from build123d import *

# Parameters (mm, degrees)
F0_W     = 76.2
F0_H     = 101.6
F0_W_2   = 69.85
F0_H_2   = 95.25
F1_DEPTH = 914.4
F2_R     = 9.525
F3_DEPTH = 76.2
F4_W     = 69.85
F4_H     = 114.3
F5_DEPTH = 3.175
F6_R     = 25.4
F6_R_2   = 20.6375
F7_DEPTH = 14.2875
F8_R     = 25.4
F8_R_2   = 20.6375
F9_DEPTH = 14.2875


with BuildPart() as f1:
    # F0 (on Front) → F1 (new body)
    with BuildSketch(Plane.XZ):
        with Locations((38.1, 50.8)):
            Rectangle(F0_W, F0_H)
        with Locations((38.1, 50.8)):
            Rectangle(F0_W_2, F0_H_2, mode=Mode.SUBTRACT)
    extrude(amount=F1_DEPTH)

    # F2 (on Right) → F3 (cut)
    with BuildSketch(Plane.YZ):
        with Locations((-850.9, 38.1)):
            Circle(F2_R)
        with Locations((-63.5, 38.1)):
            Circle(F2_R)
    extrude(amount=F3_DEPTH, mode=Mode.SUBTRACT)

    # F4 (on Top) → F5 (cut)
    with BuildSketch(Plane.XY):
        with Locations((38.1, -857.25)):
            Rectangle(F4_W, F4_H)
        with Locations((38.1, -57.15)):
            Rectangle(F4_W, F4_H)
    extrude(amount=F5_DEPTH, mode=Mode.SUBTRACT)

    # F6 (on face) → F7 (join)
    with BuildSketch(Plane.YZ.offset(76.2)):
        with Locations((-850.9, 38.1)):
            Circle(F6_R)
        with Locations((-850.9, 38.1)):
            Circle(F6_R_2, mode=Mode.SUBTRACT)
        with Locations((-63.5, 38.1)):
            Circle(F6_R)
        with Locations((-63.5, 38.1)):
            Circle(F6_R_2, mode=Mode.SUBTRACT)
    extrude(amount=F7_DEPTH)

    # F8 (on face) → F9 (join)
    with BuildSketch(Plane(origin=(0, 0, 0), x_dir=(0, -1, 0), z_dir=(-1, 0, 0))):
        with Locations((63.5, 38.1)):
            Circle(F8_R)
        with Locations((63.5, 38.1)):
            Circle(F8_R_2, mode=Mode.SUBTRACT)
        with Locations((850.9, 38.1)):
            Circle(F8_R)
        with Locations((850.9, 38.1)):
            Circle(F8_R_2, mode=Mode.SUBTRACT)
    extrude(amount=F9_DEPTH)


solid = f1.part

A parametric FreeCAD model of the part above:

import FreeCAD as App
import Part
import Sketcher

V = App.Vector
Q = App.Units.Quantity


def add_polygon(sketch, points):
    """Adds a closed chain of lines whose ends are joined by coincident constraints."""
    first, n = sketch.GeometryCount, len(points)
    for a, b in zip(points, points[1:] + points[:1]):
        sketch.addGeometry(Part.LineSegment(App.Vector(*a, 0), App.Vector(*b, 0)), False)
    for i in range(n):
        sketch.addConstraint(Sketcher.Constraint("Coincident", first + i, 2, first + (i + 1) % n, 1))

doc = App.newDocument("Part")
body = doc.addObject("PartDesign::Body", "Body")

# Sketch on XZ plane
sketch1 = body.newObject("Sketcher::SketchObject", "Sketch")
sketch1.AttachmentSupport = (doc.getObject("XZ_Plane"), [""])
sketch1.MapMode = "FlatFace"
add_polygon(sketch1, [(0, 101.6), (0, 0), (76.2, 0), (76.2, 101.6)])  # lines 0-3
add_polygon(sketch1, [(73.025, 3.175), (3.175, 3.175), (3.175, 98.425), (73.025, 98.425)])  # lines 4-7
sketch1.addConstraint([
    Sketcher.Constraint("Vertical", 0),
    Sketcher.Constraint("Horizontal", 1),
    Sketcher.Constraint("Vertical", 2),
    Sketcher.Constraint("Horizontal", 3),
    Sketcher.Constraint("Horizontal", 4),
    Sketcher.Constraint("Vertical", 5),
    Sketcher.Constraint("Horizontal", 6),
    Sketcher.Constraint("Vertical", 7),
    Sketcher.Constraint("Coincident", 0, 2, -1, 1),
    Sketcher.Constraint("DistanceX", 1, 1, 1, 2, Q("3 in")),
    Sketcher.Constraint("DistanceY", 0, 2, 0, 1, Q("4 in")),
    Sketcher.Constraint("DistanceX", 4, 2, 4, 1, Q("2.75 in")),
    Sketcher.Constraint("DistanceY", 5, 1, 5, 2, Q("3.75 in")),
    Sketcher.Constraint("DistanceX", -1, 1, 4, 2, Q("0.125 in")),
    Sketcher.Constraint("DistanceY", -1, 1, 4, 2, Q("0.125 in")),
])
pad1 = body.newObject("PartDesign::Pad", "Pad")
pad1.Profile = sketch1
pad1.Length = Q("36 in")

# Sketch on YZ plane
sketch2 = body.newObject("Sketcher::SketchObject", "Sketch001")
sketch2.AttachmentSupport = (doc.getObject("YZ_Plane"), [""])
sketch2.MapMode = "FlatFace"
sketch2.addGeometry([
    Part.Circle(V(-850.9, 38.1, 0), V(0, 0, 1), 9.525),
    Part.Circle(V(-63.5, 38.1, 0), V(0, 0, 1), 9.525),
], False)
sketch2.addConstraint([
    Sketcher.Constraint("Equal", 0, 1),
    Sketcher.Constraint("Horizontal", 0, 3, 1, 3),
    Sketcher.Constraint("Diameter", 0, Q("0.75 in")),
    Sketcher.Constraint("DistanceX", 0, 3, 1, 3, Q("31 in")),
    Sketcher.Constraint("DistanceX", 0, 3, -1, 1, Q("33.5 in")),
    Sketcher.Constraint("DistanceY", -1, 1, 0, 3, Q("1.5 in")),
])
pocket1 = body.newObject("PartDesign::Pocket", "Pocket")
pocket1.Profile = sketch2
pocket1.Length = Q("3 in")
pocket1.Reversed = True

# Sketch on XY plane
sketch3 = body.newObject("Sketcher::SketchObject", "Sketch002")
sketch3.AttachmentSupport = (doc.getObject("XY_Plane"), [""])
sketch3.MapMode = "FlatFace"
add_polygon(sketch3, [(3.175, -800.1), (3.175, -914.4), (73.025, -914.4), (73.025, -800.1)])  # lines 0-3
add_polygon(sketch3, [(3.175, 0), (3.175, -114.3), (73.025, -114.3), (73.025, 0)])  # lines 4-7
sketch3.addConstraint([
    Sketcher.Constraint("Vertical", 0),
    Sketcher.Constraint("Horizontal", 1),
    Sketcher.Constraint("Vertical", 2),
    Sketcher.Constraint("Horizontal", 3),
    Sketcher.Constraint("Vertical", 4),
    Sketcher.Constraint("Horizontal", 5),
    Sketcher.Constraint("Vertical", 6),
    Sketcher.Constraint("Horizontal", 7),
    Sketcher.Constraint("PointOnObject", 6, 2, -1),
    Sketcher.Constraint("Vertical", 3, 2, 4, 2),
    Sketcher.Constraint("Vertical", 2, 2, 5, 2),
    Sketcher.Constraint("Equal", 2, 4),
    Sketcher.Constraint("DistanceY", 0, 2, 0, 1, Q("4.5 in")),
    Sketcher.Constraint("DistanceY", 0, 2, -1, 1, Q("36 in")),
    Sketcher.Constraint("DistanceX", 1, 1, 1, 2, Q("2.75 in")),
    Sketcher.Constraint("DistanceX", -1, 1, 0, 2, Q("0.125 in")),
])
pocket2 = body.newObject("PartDesign::Pocket", "Pocket001")
pocket2.Profile = sketch3
pocket2.Length = Q("0.125 in")
pocket2.Reversed = True

# Sketch on YZ plane
sketch4 = body.newObject("Sketcher::SketchObject", "Sketch003")
sketch4.AttachmentSupport = (doc.getObject("YZ_Plane"), [""])
sketch4.MapMode = "FlatFace"
sketch4.AttachmentOffset = App.Placement(V(0, 0, 3 * 25.4), App.Rotation())
sketch4.addGeometry([
    Part.Circle(V(-850.9, 38.1, 0), V(0, 0, 1), 25.4),
    Part.Circle(V(-850.9, 38.1, 0), V(0, 0, 1), 20.6375),
    Part.Circle(V(-63.5, 38.1, 0), V(0, 0, 1), 25.4),
    Part.Circle(V(-63.5, 38.1, 0), V(0, 0, 1), 20.6375),
], False)
sketch4.addConstraint([
    Sketcher.Constraint("Coincident", 1, 3, 0, 3),
    Sketcher.Constraint("Coincident", 3, 3, 2, 3),
    Sketcher.Constraint("Equal", 0, 2),
    Sketcher.Constraint("Equal", 1, 3),
    Sketcher.Constraint("Horizontal", 1, 3, 2, 3),
    Sketcher.Constraint("Diameter", 0, Q("2 in")),
    Sketcher.Constraint("Diameter", 1, Q("1.625 in")),
    Sketcher.Constraint("DistanceX", 0, 3, 2, 3, Q("31 in")),
    Sketcher.Constraint("DistanceX", 0, 3, -1, 1, Q("33.5 in")),
    Sketcher.Constraint("DistanceY", -1, 1, 0, 3, Q("1.5 in")),
])
pad2 = body.newObject("PartDesign::Pad", "Pad001")
pad2.Profile = sketch4
pad2.Length = Q("0.5625 in")

# Sketch on YZ plane
sketch5 = body.newObject("Sketcher::SketchObject", "Sketch004")
sketch5.AttachmentSupport = (doc.getObject("YZ_Plane"), [""])
sketch5.MapMode = "FlatFace"
sketch5.addGeometry([
    Part.Circle(V(-63.5, 38.1, 0), V(0, 0, 1), 25.4),
    Part.Circle(V(-63.5, 38.1, 0), V(0, 0, 1), 20.6375),
    Part.Circle(V(-850.9, 38.1, 0), V(0, 0, 1), 25.4),
    Part.Circle(V(-850.9, 38.1, 0), V(0, 0, 1), 20.6375),
], False)
sketch5.addConstraint([
    Sketcher.Constraint("Coincident", 1, 3, 0, 3),
    Sketcher.Constraint("Coincident", 3, 3, 2, 3),
    Sketcher.Constraint("Equal", 0, 2),
    Sketcher.Constraint("Equal", 1, 3),
    Sketcher.Constraint("Horizontal", 1, 3, 2, 3),
    Sketcher.Constraint("Diameter", 0, Q("2 in")),
    Sketcher.Constraint("Diameter", 1, Q("1.625 in")),
    Sketcher.Constraint("DistanceX", 2, 3, 0, 3, Q("31 in")),
    Sketcher.Constraint("DistanceX", 0, 3, -1, 1, Q("2.5 in")),
    Sketcher.Constraint("DistanceY", -1, 1, 0, 3, Q("1.5 in")),
])
pad3 = body.newObject("PartDesign::Pad", "Pad002")
pad3.Profile = sketch5
pad3.Length = Q("0.5625 in")
pad3.Reversed = True

doc.recompute()
